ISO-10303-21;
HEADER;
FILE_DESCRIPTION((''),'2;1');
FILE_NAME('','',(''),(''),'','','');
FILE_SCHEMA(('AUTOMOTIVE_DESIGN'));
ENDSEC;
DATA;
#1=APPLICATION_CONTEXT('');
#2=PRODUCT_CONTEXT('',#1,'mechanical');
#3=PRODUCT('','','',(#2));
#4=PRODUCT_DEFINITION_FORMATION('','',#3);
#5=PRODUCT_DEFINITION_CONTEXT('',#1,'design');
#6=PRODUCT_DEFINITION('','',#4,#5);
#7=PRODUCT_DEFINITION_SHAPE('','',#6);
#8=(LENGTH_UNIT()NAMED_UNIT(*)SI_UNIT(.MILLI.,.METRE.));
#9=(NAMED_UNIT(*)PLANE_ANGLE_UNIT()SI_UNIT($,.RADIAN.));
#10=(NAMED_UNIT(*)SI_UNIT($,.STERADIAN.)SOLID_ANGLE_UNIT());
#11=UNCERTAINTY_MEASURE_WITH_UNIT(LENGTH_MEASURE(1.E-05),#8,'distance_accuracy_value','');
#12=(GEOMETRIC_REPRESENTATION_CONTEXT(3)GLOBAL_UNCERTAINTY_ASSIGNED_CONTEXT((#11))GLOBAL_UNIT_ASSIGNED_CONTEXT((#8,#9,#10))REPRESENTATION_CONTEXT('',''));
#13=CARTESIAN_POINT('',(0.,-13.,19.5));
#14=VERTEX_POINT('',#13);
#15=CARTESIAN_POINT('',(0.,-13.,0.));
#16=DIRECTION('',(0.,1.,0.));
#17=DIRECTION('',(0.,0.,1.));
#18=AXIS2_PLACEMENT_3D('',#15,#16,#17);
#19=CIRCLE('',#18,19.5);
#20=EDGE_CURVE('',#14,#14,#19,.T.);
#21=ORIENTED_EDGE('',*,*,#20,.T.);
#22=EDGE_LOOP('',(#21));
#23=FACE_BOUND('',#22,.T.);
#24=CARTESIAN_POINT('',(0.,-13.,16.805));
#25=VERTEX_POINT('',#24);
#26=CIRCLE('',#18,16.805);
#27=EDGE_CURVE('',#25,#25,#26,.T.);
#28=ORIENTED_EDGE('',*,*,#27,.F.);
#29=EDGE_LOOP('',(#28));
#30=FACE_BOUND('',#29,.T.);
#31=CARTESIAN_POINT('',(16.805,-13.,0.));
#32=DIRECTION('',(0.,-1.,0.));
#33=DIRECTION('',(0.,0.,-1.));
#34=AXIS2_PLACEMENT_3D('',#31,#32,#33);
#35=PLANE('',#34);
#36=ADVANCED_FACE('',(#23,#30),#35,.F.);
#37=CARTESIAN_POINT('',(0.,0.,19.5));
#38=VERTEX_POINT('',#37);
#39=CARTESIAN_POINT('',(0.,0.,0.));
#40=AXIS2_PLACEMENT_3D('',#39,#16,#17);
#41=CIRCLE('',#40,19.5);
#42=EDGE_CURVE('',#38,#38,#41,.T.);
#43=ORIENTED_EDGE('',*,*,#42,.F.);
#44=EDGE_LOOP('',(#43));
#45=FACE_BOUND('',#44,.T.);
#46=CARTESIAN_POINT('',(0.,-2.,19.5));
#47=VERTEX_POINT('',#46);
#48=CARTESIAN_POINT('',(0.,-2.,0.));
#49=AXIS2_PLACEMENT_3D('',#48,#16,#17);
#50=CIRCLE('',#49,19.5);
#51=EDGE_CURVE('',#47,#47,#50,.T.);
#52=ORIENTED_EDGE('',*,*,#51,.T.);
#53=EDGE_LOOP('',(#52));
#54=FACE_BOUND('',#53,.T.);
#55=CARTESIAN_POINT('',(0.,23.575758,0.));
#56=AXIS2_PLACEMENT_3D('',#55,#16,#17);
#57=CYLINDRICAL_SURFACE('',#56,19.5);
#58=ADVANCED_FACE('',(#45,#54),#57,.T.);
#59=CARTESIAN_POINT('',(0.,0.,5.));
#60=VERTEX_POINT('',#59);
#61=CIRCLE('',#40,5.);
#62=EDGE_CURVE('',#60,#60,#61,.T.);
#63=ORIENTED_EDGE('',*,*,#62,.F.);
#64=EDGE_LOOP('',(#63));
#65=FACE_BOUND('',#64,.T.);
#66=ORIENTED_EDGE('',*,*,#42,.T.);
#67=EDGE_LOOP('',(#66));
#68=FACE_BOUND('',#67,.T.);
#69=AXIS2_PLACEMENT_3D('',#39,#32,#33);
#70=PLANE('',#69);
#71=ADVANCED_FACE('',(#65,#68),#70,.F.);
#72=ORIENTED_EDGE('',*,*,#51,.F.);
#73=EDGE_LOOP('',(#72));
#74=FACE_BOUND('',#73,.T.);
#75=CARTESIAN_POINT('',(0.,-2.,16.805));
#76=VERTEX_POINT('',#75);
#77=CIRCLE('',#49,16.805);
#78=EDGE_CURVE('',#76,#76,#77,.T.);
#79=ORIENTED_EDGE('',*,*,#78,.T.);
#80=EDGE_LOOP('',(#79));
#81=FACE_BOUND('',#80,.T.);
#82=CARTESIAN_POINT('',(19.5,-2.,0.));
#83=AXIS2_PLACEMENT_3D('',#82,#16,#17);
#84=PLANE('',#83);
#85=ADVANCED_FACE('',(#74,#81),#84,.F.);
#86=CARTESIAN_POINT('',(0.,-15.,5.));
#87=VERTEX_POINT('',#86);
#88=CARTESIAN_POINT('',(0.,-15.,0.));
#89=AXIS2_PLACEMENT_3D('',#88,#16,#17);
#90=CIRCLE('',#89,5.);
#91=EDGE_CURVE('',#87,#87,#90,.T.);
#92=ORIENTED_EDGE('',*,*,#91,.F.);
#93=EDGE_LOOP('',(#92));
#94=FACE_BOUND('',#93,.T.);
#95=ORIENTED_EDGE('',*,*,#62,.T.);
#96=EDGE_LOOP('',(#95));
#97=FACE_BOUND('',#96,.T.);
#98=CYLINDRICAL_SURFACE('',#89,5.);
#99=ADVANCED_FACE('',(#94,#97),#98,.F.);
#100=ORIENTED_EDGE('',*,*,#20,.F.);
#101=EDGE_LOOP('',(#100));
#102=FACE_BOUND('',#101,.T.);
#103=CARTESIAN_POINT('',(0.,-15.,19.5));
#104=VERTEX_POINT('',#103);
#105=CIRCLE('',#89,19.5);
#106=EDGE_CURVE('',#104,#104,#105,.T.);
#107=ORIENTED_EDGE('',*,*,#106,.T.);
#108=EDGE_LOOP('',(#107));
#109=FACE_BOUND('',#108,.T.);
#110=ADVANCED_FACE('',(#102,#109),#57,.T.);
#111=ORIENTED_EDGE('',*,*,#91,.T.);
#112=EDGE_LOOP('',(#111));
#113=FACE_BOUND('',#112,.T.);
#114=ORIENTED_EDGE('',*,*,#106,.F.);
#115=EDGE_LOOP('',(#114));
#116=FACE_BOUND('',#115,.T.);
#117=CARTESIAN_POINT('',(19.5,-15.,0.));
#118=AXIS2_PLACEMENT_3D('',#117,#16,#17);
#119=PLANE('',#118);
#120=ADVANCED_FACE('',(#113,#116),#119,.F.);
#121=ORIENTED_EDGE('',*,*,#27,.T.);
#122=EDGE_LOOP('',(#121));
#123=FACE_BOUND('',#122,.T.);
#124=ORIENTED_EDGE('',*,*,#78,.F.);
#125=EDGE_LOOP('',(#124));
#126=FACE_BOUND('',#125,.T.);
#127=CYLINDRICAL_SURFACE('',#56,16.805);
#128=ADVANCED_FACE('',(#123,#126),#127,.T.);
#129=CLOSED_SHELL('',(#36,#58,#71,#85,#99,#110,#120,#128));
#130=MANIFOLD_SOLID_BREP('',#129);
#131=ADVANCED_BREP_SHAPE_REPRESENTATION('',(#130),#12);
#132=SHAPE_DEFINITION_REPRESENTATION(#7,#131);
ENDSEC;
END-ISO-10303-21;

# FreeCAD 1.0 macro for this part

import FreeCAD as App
import Part
import Sketcher

V = App.Vector

doc = App.newDocument("Part")
params = doc.addObject("Spreadsheet::Sheet", "Params")
for row, (alias, value) in enumerate([
    ("sketch1_height", "15 mm"),
    ("sketch1_height2", "2 mm"),
    ("sketch1_width", "19.5 mm"),
    ("revolution_angle", "360 deg"),
    ("sketch2_diameter", "10 mm"),
], start=1):
    params.set(f"A{row}", alias)
    params.set(f"B{row}", "=" + value)
    params.setAlias(f"B{row}", alias)

body = doc.addObject("PartDesign::Body", "Body")

sketch1 = body.newObject("Sketcher::SketchObject", "Sketch")
sketch1.AttachmentSupport = (doc.getObject("XY_Plane"), [""])
sketch1.MapMode = "FlatFace"
sketch1.addGeometry([
    Part.LineSegment(V(19.5, 0, 0), V(0, 0, 0)),
    Part.LineSegment(V(0, 0, 0), V(0, -15, 0)),
    Part.LineSegment(V(0, -15, 0), V(19.5, -15, 0)),
    Part.LineSegment(V(19.5, -15, 0), V(19.5, -13, 0)),
    Part.LineSegment(V(19.5, -13, 0), V(16.8, -13, 0)),
    Part.LineSegment(V(16.8, -13, 0), V(16.8, -2, 0)),
    Part.LineSegment(V(16.8, -2, 0), V(19.5, -2, 0)),
    Part.LineSegment(V(19.5, -2, 0), V(19.5, 0, 0)),
], False)
sketch1.addConstraint([
    Sketcher.Constraint("Coincident", 0, 2, 1, 1),
    Sketcher.Constraint("Coincident", 1, 2, 2, 1),
    Sketcher.Constraint("Coincident", 2, 2, 3, 1),
    Sketcher.Constraint("Coincident", 3, 2, 4, 1),
    Sketcher.Constraint("Coincident", 4, 2, 5, 1),
    Sketcher.Constraint("Coincident", 5, 2, 6, 1),
    Sketcher.Constraint("Coincident", 6, 2, 7, 1),
    Sketcher.Constraint("Coincident", 7, 2, 0, 1),
    Sketcher.Constraint("Horizontal", 0),
    Sketcher.Constraint("Vertical", 1),
    Sketcher.Constraint("Horizontal", 2),
    Sketcher.Constraint("Vertical", 3),
    Sketcher.Constraint("Horizontal", 4),
    Sketcher.Constraint("Vertical", 5),
    Sketcher.Constraint("Horizontal", 6),
    Sketcher.Constraint("Vertical", 7),
    Sketcher.Constraint("Coincident", 0, 2, -1, 1),
    Sketcher.Constraint("Vertical", 3, 2, 6, 2),
    Sketcher.Constraint("Equal", 3, 7),
    Sketcher.Constraint("DistanceY", 1, 2, 1, 1, 15.0),
    Sketcher.Constraint("DistanceY", 3, 1, 3, 2, 2.0),
    Sketcher.Constraint("DistanceX", 0, 2, 0, 1, 19.5),
    Sketcher.Constraint("DistanceX", 4, 2, 4, 1, 2.695),
])
sketch1.setExpression("Constraints[19]", "Params.sketch1_height")
sketch1.setExpression("Constraints[20]", "Params.sketch1_height2")
sketch1.setExpression("Constraints[21]", "Params.sketch1_width")
revolution = body.newObject("PartDesign::Revolution", "Revolution")
revolution.Profile = sketch1
revolution.ReferenceAxis = (sketch1, ["V_Axis"])
revolution.setExpression("Angle", "Params.revolution_angle")

sketch2 = body.newObject("Sketcher::SketchObject", "Sketch001")
sketch2.AttachmentSupport = (doc.getObject("XZ_Plane"), [""])
sketch2.MapMode = "FlatFace"
sketch2.addGeometry(Part.Circle(V(0, 0, 0), V(0, 0, 1), 5), False)
sketch2.addConstraint([
    Sketcher.Constraint("Coincident", 0, 3, -1, 1),
    Sketcher.Constraint("Diameter", 0, 10.0),
])
sketch2.setExpression("Constraints[1]", "Params.sketch2_diameter")
pocket1 = body.newObject("PartDesign::Pocket", "Pocket")
pocket1.Profile = sketch2
pocket1.Type = "ThroughAll"
pocket1.Reversed = True

doc.recompute()
